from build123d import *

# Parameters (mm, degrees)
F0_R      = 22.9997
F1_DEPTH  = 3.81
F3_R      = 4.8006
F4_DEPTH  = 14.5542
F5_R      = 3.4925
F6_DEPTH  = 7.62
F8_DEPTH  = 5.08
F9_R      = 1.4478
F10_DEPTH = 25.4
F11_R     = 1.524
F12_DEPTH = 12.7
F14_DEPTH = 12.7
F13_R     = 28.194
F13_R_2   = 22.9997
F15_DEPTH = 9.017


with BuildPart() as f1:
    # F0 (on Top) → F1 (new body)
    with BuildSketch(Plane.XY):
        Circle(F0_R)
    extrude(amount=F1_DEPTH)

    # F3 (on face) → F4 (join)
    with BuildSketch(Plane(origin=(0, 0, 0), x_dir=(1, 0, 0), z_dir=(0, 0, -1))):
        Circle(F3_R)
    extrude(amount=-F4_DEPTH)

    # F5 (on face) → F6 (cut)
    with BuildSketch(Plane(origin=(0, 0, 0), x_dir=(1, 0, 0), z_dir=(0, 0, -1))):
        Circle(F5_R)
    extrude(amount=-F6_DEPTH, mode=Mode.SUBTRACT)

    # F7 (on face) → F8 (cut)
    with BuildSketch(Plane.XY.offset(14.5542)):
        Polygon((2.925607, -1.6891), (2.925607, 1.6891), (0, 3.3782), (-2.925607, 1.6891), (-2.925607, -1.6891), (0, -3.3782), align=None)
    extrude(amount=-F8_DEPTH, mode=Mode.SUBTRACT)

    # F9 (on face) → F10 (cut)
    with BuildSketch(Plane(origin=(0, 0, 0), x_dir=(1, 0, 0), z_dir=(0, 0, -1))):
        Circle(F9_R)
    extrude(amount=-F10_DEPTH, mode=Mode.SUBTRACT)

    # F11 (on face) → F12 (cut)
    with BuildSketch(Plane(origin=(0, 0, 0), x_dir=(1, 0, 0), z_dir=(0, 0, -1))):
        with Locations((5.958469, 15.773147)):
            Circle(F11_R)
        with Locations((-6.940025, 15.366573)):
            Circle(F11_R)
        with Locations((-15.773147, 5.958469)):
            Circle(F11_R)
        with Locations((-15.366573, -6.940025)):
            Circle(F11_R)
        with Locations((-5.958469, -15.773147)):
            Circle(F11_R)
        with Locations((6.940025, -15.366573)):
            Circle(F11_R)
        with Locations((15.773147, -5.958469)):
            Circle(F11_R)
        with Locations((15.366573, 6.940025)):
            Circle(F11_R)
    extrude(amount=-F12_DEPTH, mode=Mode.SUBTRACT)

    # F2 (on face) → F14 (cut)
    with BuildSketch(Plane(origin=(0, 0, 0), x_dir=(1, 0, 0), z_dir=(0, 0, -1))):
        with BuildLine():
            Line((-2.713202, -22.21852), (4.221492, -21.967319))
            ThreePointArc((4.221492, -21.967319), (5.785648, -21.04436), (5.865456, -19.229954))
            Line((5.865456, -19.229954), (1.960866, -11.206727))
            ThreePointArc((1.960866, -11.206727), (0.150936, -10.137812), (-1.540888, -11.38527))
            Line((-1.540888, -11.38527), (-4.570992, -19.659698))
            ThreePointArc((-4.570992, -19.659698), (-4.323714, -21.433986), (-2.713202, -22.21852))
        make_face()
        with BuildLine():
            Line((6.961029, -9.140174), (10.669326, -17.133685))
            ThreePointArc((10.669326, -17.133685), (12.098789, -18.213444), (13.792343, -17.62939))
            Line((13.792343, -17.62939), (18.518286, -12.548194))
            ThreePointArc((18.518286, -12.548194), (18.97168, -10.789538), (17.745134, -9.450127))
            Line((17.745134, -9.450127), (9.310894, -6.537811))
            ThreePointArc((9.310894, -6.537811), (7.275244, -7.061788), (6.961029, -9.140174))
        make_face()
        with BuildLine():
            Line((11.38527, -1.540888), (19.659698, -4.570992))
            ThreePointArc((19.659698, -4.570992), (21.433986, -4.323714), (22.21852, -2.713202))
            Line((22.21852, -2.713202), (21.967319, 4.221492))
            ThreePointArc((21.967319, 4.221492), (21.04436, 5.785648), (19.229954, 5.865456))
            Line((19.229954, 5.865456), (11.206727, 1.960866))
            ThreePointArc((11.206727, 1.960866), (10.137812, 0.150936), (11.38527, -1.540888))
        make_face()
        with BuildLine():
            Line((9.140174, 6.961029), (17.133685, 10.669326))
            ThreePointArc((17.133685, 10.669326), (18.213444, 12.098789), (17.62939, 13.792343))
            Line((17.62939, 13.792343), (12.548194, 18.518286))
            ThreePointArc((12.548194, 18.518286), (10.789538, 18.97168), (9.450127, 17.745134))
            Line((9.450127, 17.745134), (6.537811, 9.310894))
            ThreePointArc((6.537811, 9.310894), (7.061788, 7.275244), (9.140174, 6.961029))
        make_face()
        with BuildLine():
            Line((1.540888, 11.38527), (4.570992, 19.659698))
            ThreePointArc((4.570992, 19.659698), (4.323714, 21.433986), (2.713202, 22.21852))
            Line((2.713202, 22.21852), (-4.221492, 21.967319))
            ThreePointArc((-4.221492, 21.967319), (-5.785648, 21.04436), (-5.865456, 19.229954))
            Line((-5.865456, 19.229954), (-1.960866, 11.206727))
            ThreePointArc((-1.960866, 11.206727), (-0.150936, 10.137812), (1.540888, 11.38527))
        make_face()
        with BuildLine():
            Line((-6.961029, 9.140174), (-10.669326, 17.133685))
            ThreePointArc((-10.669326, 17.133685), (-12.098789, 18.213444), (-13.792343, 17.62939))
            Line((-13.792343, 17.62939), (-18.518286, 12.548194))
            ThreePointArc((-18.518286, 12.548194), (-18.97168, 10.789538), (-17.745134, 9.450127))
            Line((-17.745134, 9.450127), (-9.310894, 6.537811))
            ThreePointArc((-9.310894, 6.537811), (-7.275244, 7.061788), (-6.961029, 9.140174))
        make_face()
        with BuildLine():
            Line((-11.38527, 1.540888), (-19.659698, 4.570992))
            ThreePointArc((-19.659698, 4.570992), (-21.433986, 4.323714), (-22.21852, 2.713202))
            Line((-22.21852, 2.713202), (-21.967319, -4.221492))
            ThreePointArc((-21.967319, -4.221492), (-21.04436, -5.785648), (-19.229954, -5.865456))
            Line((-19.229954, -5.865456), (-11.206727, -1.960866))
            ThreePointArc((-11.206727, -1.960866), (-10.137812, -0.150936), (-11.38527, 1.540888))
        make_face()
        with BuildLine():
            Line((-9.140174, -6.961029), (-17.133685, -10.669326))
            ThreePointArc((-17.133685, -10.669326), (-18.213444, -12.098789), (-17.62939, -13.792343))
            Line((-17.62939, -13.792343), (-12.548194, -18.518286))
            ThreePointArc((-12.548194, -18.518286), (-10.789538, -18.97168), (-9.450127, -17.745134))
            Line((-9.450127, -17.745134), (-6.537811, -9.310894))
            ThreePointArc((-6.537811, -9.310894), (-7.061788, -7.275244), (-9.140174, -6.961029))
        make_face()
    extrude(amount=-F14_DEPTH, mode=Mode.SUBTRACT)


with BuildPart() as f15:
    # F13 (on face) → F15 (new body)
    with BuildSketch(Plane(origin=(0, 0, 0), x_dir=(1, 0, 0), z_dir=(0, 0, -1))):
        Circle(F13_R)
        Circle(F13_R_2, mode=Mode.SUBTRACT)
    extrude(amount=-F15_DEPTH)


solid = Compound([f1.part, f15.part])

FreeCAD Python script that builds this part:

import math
import FreeCAD as App
import Part
import Sketcher
from FreeCAD import Vector
Q = App.Units.Quantity

doc = App.newDocument("Part")
body = doc.addObject("PartDesign::Body", "Body")

# Sketch on XY plane
sketch1 = body.newObject("Sketcher::SketchObject", "Sketch")
sketch1.AttachmentSupport = (doc.getObject("XY_Plane"), [""])
sketch1.MapMode = "FlatFace"
sketch1.addGeometry(Part.Circle(Vector(0, 0, 0), Vector(0, 0, 1), 23), False)
sketch1.addConstraint([
    Sketcher.Constraint("Coincident", 0, 3, -1, 1),
    Sketcher.Constraint("Diameter", 0, Q("1.811 in")),
])
pad1 = body.newObject("PartDesign::Pad", "Pad")
pad1.Profile = sketch1
pad1.Length = Q("0.15 in")

# Sketch on XY plane
sketch2 = body.newObject("Sketcher::SketchObject", "Sketch001")
sketch2.AttachmentSupport = (doc.getObject("XY_Plane"), [""])
sketch2.MapMode = "FlatFace"
sketch2.addGeometry(Part.Circle(Vector(0, 0, 0), Vector(0, 0, 1), 4.8), False)
sketch2.addConstraint([
    Sketcher.Constraint("Coincident", 0, 3, -1, 1),
    Sketcher.Constraint("Diameter", 0, Q("0.378 in")),
])
pad2 = body.newObject("PartDesign::Pad", "Pad001")
pad2.Profile = sketch2
pad2.Length = Q("0.573 in")

# Sketch on XY plane
sketch3 = body.newObject("Sketcher::SketchObject", "Sketch002")
sketch3.AttachmentSupport = (doc.getObject("XY_Plane"), [""])
sketch3.MapMode = "FlatFace"
sketch3.addGeometry(Part.Circle(Vector(0, 0, 0), Vector(0, 0, 1), 3.5), False)
sketch3.addConstraint([
    Sketcher.Constraint("Coincident", 0, 3, -1, 1),
    Sketcher.Constraint("Diameter", 0, Q("0.275 in")),
])
pocket1 = body.newObject("PartDesign::Pocket", "Pocket")
pocket1.Profile = sketch3
pocket1.Length = Q("0.3 in")
pocket1.Reversed = True

# Sketch on XY plane
sketch4 = body.newObject("Sketcher::SketchObject", "Sketch003")
sketch4.AttachmentSupport = (doc.getObject("XY_Plane"), [""])
sketch4.MapMode = "FlatFace"
sketch4.AttachmentOffset = App.Placement(Vector(0, 0, 0.573 * 25.4), App.Rotation())
sketch4.addGeometry([
    Part.LineSegment(Vector(2.9, -1.7, 0), Vector(2.9, 1.7, 0)),  # 0
    Part.LineSegment(Vector(2.9, 1.7, 0), Vector(0, 3.4, 0)),  # 1
    Part.LineSegment(Vector(0, 3.4, 0), Vector(-2.9, 1.7, 0)),  # 2
    Part.LineSegment(Vector(-2.9, 1.7, 0), Vector(-2.9, -1.7, 0)),  # 3
    Part.LineSegment(Vector(-2.9, -1.7, 0), Vector(0, -3.4, 0)),  # 4
    Part.LineSegment(Vector(0, -3.4, 0), Vector(2.9, -1.7, 0)),  # 5
], False)
sketch4.addConstraint([
    Sketcher.Constraint("Coincident", 0, 2, 1, 1),
    Sketcher.Constraint("Coincident", 1, 2, 2, 1),
    Sketcher.Constraint("Coincident", 2, 2, 3, 1),
    Sketcher.Constraint("Coincident", 3, 2, 4, 1),
    Sketcher.Constraint("Coincident", 4, 2, 5, 1),
    Sketcher.Constraint("Coincident", 5, 2, 0, 1),
    Sketcher.Constraint("Vertical", 0),
    Sketcher.Constraint("Vertical", 3),
    Sketcher.Constraint("Symmetric", 0, 2, 3, 2, -1, 1),
    Sketcher.Constraint("Symmetric", 1, 2, 4, 2, -1, 1),
    Sketcher.Constraint("PointOnObject", 1, 2, -2),
    Sketcher.Constraint("Parallel", 2, 5),
    Sketcher.Constraint("Horizontal", 0, 2, 2, 2),
    Sketcher.Constraint("Angle", 1, Q("150 deg")),
    Sketcher.Constraint("DistanceY", 0, 1, 0, 2, Q("0.133 in")),
    Sketcher.Constraint("Distance", 1, Q("0.133 in")),
])
pocket2 = body.newObject("PartDesign::Pocket", "Pocket001")
pocket2.Profile = sketch4
pocket2.Length = Q("0.2 in")

# Sketch on XY plane
sketch5 = body.newObject("Sketcher::SketchObject", "Sketch004")
sketch5.AttachmentSupport = (doc.getObject("XY_Plane"), [""])
sketch5.MapMode = "FlatFace"
sketch5.addGeometry(Part.Circle(Vector(0, 0, 0), Vector(0, 0, 1), 1.4), False)
sketch5.addConstraint([
    Sketcher.Constraint("Coincident", 0, 3, -1, 1),
    Sketcher.Constraint("Diameter", 0, Q("0.114 in")),
])
pocket3 = body.newObject("PartDesign::Pocket", "Pocket002")
pocket3.Profile = sketch5
pocket3.Length = Q("1 in")
pocket3.Reversed = True

# Sketch on XY plane
sketch6 = body.newObject("Sketcher::SketchObject", "Sketch005")
sketch6.AttachmentSupport = (doc.getObject("XY_Plane"), [""])
sketch6.MapMode = "FlatFace"
sketch6.addGeometry([
    Part.Circle(Vector(6, -15.8, 0), Vector(0, 0, 1), 1.5),  # 0
    Part.Circle(Vector(-6.9, -15.4, 0), Vector(0, 0, 1), 1.5),  # 1
    Part.Circle(Vector(-15.8, -6, 0), Vector(0, 0, 1), 1.5),  # 2
    Part.Circle(Vector(-15.4, 6.9, 0), Vector(0, 0, 1), 1.5),  # 3
    Part.Circle(Vector(-6, 15.8, 0), Vector(0, 0, 1), 1.5),  # 4
    Part.Circle(Vector(6.9, 15.4, 0), Vector(0, 0, 1), 1.5),  # 5
    Part.Circle(Vector(15.8, 6, 0), Vector(0, 0, 1), 1.5),  # 6
    Part.Circle(Vector(15.4, -6.9, 0), Vector(0, 0, 1), 1.5),  # 7
], False)
sketch6.addConstraint([
    Sketcher.Constraint("Equal", 0, 1),
    Sketcher.Constraint("Equal", 1, 2),
    Sketcher.Constraint("Equal", 2, 3),
    Sketcher.Constraint("Equal", 3, 4),
    Sketcher.Constraint("Equal", 4, 5),
    Sketcher.Constraint("Equal", 5, 6),
    Sketcher.Constraint("Equal", 6, 7),
    Sketcher.Constraint("Symmetric", 0, 3, 4, 3, -1, 1),
    Sketcher.Constraint("Symmetric", 1, 3, 5, 3, -1, 1),
    Sketcher.Constraint("Symmetric", 2, 3, 6, 3, -1, 1),
    Sketcher.Constraint("Symmetric", 3, 3, 7, 3, -1, 1),
    Sketcher.Constraint("Diameter", 0, Q("0.12 in")),
    Sketcher.Constraint("DistanceY", 1, 3, 3, 3, Q("22.306598 mm")),
    Sketcher.Constraint("DistanceX", 3, 3, 5, 3, Q("22.306598 mm")),
    Sketcher.Constraint("DistanceX", -1, 1, 0, 3, Q("5.958469 mm")),
    Sketcher.Constraint("DistanceY", 2, 3, -1, 1, Q("5.958469 mm")),
    Sketcher.Constraint("DistanceY", 0, 3, 2, 3, Q("9.814678 mm")),
    Sketcher.Constraint("DistanceX", 3, 3, 0, 3, Q("21.325042 mm")),
    Sketcher.Constraint("DistanceY", 0, 3, 3, 3, Q("22.713172 mm")),
    Sketcher.Constraint("DistanceX", 2, 3, 4, 3, Q("9.814678 mm")),
])
pocket4 = body.newObject("PartDesign::Pocket", "Pocket003")
pocket4.Profile = sketch6
pocket4.Length = Q("0.5 in")
pocket4.Reversed = True

# Sketch on XY plane
sketch7 = body.newObject("Sketcher::SketchObject", "Sketch006")
sketch7.AttachmentSupport = (doc.getObject("XY_Plane"), [""])
sketch7.MapMode = "FlatFace"
sketch7.addGeometry([
    Part.LineSegment(Vector(-2.7, 22.2, 0), Vector(4.2, 22, 0)),  # 0
    Part.ArcOfCircle(Part.Circle(Vector(4.2, 20.1, 0), Vector(0, 0, 1), 1.9), math.radians(-26), math.radians(88)),  # 1
    Part.LineSegment(Vector(5.9, 19.2, 0), Vector(2, 11.2, 0)),  # 2
    Part.ArcOfCircle(Part.Circle(Vector(0.2, 12, 0), Vector(0, 0, 1), 1.9), math.radians(-160), math.radians(-26)),  # 3
    Part.LineSegment(Vector(-1.5, 11.4, 0), Vector(-4.6, 19.7, 0)),  # 4
    Part.ArcOfCircle(Part.Circle(Vector(-2.8, 20.3, 0), Vector(0, 0, 1), 1.9), math.radians(88), math.radians(200)),  # 5
    Part.LineSegment(Vector(7, 9.1, 0), Vector(10.7, 17.1, 0)),  # 6
    Part.ArcOfCircle(Part.Circle(Vector(12.4, 16.3, 0), Vector(0, 0, 1), 1.9), math.radians(43), math.radians(155)),  # 7
    Part.LineSegment(Vector(13.8, 17.6, 0), Vector(18.5, 12.5, 0)),  # 8
    Part.ArcOfCircle(Part.Circle(Vector(17.1, 11.3, 0), Vector(0, 0, 1), 1.9), math.radians(-71), math.radians(43)),  # 9
    Part.LineSegment(Vector(17.7, 9.5, 0), Vector(9.3, 6.5, 0)),  # 10
    Part.ArcOfCircle(Part.Circle(Vector(8.7, 8.3, 0), Vector(0, 0, 1), 1.9), math.radians(155), math.radians(289)),  # 11
    Part.LineSegment(Vector(11.4, 1.5, 0), Vector(19.7, 4.6, 0)),  # 12
    Part.ArcOfCircle(Part.Circle(Vector(20.3, 2.8, 0), Vector(0, 0, 1), 1.9), math.radians(-2), math.radians(110)),  # 13
    Part.LineSegment(Vector(22.2, 2.7, 0), Vector(22, -4.2, 0)),  # 14
    Part.ArcOfCircle(Part.Circle(Vector(20.1, -4.2, 0), Vector(0, 0, 1), 1.9), math.radians(-116), math.radians(-2)),  # 15
    Part.LineSegment(Vector(19.2, -5.9, 0), Vector(11.2, -2, 0)),  # 16
    Part.ArcOfCircle(Part.Circle(Vector(12, -0.2, 0), Vector(0, 0, 1), 1.9), math.radians(110), math.radians(244)),  # 17
    Part.LineSegment(Vector(9.1, -7, 0), Vector(17.1, -10.7, 0)),  # 18
    Part.ArcOfCircle(Part.Circle(Vector(16.3, -12.4, 0), Vector(0, 0, 1), 1.9), math.radians(-47), math.radians(65)),  # 19
    Part.LineSegment(Vector(17.6, -13.8, 0), Vector(12.5, -18.5, 0)),  # 20
    Part.ArcOfCircle(Part.Circle(Vector(11.3, -17.1, 0), Vector(0, 0, 1), 1.9), math.radians(-161), math.radians(-47)),  # 21
    Part.LineSegment(Vector(9.5, -17.7, 0), Vector(6.5, -9.3, 0)),  # 22
    Part.ArcOfCircle(Part.Circle(Vector(8.3, -8.7, 0), Vector(0, 0, 1), 1.9), math.radians(65), math.radians(199)),  # 23
    Part.LineSegment(Vector(1.5, -11.4, 0), Vector(4.6, -19.7, 0)),  # 24
    Part.ArcOfCircle(Part.Circle(Vector(2.8, -20.3, 0), Vector(0, 0, 1), 1.9), math.radians(-92), math.radians(20)),  # 25
    Part.LineSegment(Vector(2.7, -22.2, 0), Vector(-4.2, -22, 0)),  # 26
    Part.ArcOfCircle(Part.Circle(Vector(-4.2, -20.1, 0), Vector(0, 0, 1), 1.9), math.radians(154), math.radians(268)),  # 27
    Part.LineSegment(Vector(-5.9, -19.2, 0), Vector(-2, -11.2, 0)),  # 28
    Part.ArcOfCircle(Part.Circle(Vector(-0.2, -12, 0), Vector(0, 0, 1), 1.9), math.radians(20), math.radians(154)),  # 29
    Part.LineSegment(Vector(-7, -9.1, 0), Vector(-10.7, -17.1, 0)),  # 30
    Part.ArcOfCircle(Part.Circle(Vector(-12.4, -16.3, 0), Vector(0, 0, 1), 1.9), math.radians(-137), math.radians(-25)),  # 31
    Part.LineSegment(Vector(-13.8, -17.6, 0), Vector(-18.5, -12.5, 0)),  # 32
    Part.ArcOfCircle(Part.Circle(Vector(-17.1, -11.3, 0), Vector(0, 0, 1), 1.9), math.radians(109), math.radians(223)),  # 33
    Part.LineSegment(Vector(-17.7, -9.5, 0), Vector(-9.3, -6.5, 0)),  # 34
    Part.ArcOfCircle(Part.Circle(Vector(-8.7, -8.3, 0), Vector(0, 0, 1), 1.9), math.radians(-25), math.radians(109)),  # 35
    Part.LineSegment(Vector(-11.4, -1.5, 0), Vector(-19.7, -4.6, 0)),  # 36
    Part.ArcOfCircle(Part.Circle(Vector(-20.3, -2.8, 0), Vector(0, 0, 1), 1.9), math.radians(178), math.radians(290)),  # 37
    Part.LineSegment(Vector(-22.2, -2.7, 0), Vector(-22, 4.2, 0)),  # 38
    Part.ArcOfCircle(Part.Circle(Vector(-20.1, 4.2, 0), Vector(0, 0, 1), 1.9), math.radians(64), math.radians(178)),  # 39
    Part.LineSegment(Vector(-19.2, 5.9, 0), Vector(-11.2, 2, 0)),  # 40
    Part.ArcOfCircle(Part.Circle(Vector(-12, 0.2, 0), Vector(0, 0, 1), 1.9), math.radians(-70), math.radians(64)),  # 41
    Part.LineSegment(Vector(-9.1, 7, 0), Vector(-17.1, 10.7, 0)),  # 42
    Part.ArcOfCircle(Part.Circle(Vector(-16.3, 12.4, 0), Vector(0, 0, 1), 1.9), math.radians(133), math.radians(245)),  # 43
    Part.LineSegment(Vector(-17.6, 13.8, 0), Vector(-12.5, 18.5, 0)),  # 44
    Part.ArcOfCircle(Part.Circle(Vector(-11.3, 17.1, 0), Vector(0, 0, 1), 1.9), math.radians(19), math.radians(133)),  # 45
    Part.LineSegment(Vector(-9.5, 17.7, 0), Vector(-6.5, 9.3, 0)),  # 46
    Part.ArcOfCircle(Part.Circle(Vector(-8.3, 8.7, 0), Vector(0, 0, 1), 1.9), math.radians(-115), math.radians(19)),  # 47
], False)
sketch7.addConstraint([
    Sketcher.Constraint("Tangent", 0, 2, 1, 2),
    Sketcher.Constraint("Tangent", 1, 1, 2, 1),
    Sketcher.Constraint("Tangent", 2, 2, 3, 2),
    Sketcher.Constraint("Tangent", 3, 1, 4, 1),
    Sketcher.Constraint("Tangent", 4, 2, 5, 2),
    Sketcher.Constraint("Tangent", 5, 1, 0, 1),
    Sketcher.Constraint("Tangent", 6, 2, 7, 2),
    Sketcher.Constraint("Tangent", 7, 1, 8, 1),
    Sketcher.Constraint("Tangent", 8, 2, 9, 2),
    Sketcher.Constraint("Tangent", 9, 1, 10, 1),
    Sketcher.Constraint("Tangent", 10, 2, 11, 2),
    Sketcher.Constraint("Tangent", 11, 1, 6, 1),
    Sketcher.Constraint("Tangent", 12, 2, 13, 2),
    Sketcher.Constraint("Tangent", 13, 1, 14, 1),
    Sketcher.Constraint("Tangent", 14, 2, 15, 2),
    Sketcher.Constraint("Tangent", 15, 1, 16, 1),
    Sketcher.Constraint("Tangent", 16, 2, 17, 2),
    Sketcher.Constraint("Tangent", 17, 1, 12, 1),
    Sketcher.Constraint("Tangent", 18, 2, 19, 2),
    Sketcher.Constraint("Tangent", 19, 1, 20, 1),
    Sketcher.Constraint("Tangent", 20, 2, 21, 2),
    Sketcher.Constraint("Tangent", 21, 1, 22, 1),
    Sketcher.Constraint("Tangent", 22, 2, 23, 2),
    Sketcher.Constraint("Tangent", 23, 1, 18, 1),
    Sketcher.Constraint("Tangent", 24, 2, 25, 2),
    Sketcher.Constraint("Tangent", 25, 1, 26, 1),
    Sketcher.Constraint("Tangent", 26, 2, 27, 2),
    Sketcher.Constraint("Tangent", 27, 1, 28, 1),
    Sketcher.Constraint("Tangent", 28, 2, 29, 2),
    Sketcher.Constraint("Tangent", 29, 1, 24, 1),
    Sketcher.Constraint("Tangent", 30, 2, 31, 2),
    Sketcher.Constraint("Tangent", 31, 1, 32, 1),
    Sketcher.Constraint("Tangent", 32, 2, 33, 2),
    Sketcher.Constraint("Tangent", 33, 1, 34, 1),
    Sketcher.Constraint("Tangent", 34, 2, 35, 2),
    Sketcher.Constraint("Tangent", 35, 1, 30, 1),
    Sketcher.Constraint("Tangent", 36, 2, 37, 2),
    Sketcher.Constraint("Tangent", 37, 1, 38, 1),
    Sketcher.Constraint("Tangent", 38, 2, 39, 2),
    Sketcher.Constraint("Tangent", 39, 1, 40, 1),
    Sketcher.Constraint("Tangent", 40, 2, 41, 2),
    Sketcher.Constraint("Tangent", 41, 1, 36, 1),
    Sketcher.Constraint("Tangent", 42, 2, 43, 2),
    Sketcher.Constraint("Tangent", 43, 1, 44, 1),
    Sketcher.Constraint("Tangent", 44, 2, 45, 2),
    Sketcher.Constraint("Tangent", 45, 1, 46, 1),
    Sketcher.Constraint("Tangent", 46, 2, 47, 2),
    Sketcher.Constraint("Tangent", 47, 1, 42, 1),
    Sketcher.Constraint("Equal", 1, 3),
    Sketcher.Constraint("Equal", 3, 5),
    Sketcher.Constraint("Equal", 5, 7),
    Sketcher.Constraint("Equal", 7, 9),
    Sketcher.Constraint("Equal", 9, 11),
    Sketcher.Constraint("Equal", 11, 13),
    Sketcher.Constraint("Equal", 13, 15),
    Sketcher.Constraint("Equal", 15, 17),
    Sketcher.Constraint("Equal", 17, 19),
    Sketcher.Constraint("Equal", 19, 21),
    Sketcher.Constraint("Equal", 21, 23),
    Sketcher.Constraint("Equal", 23, 25),
    Sketcher.Constraint("Equal", 25, 27),
    Sketcher.Constraint("Equal", 27, 29),
    Sketcher.Constraint("Equal", 29, 31),
    Sketcher.Constraint("Equal", 31, 33),
    Sketcher.Constraint("Equal", 33, 35),
    Sketcher.Constraint("Equal", 35, 37),
    Sketcher.Constraint("Equal", 37, 39),
    Sketcher.Constraint("Equal", 39, 41),
    Sketcher.Constraint("Equal", 41, 43),
    Sketcher.Constraint("Equal", 43, 45),
    Sketcher.Constraint("Equal", 45, 47),
    Sketcher.Constraint("Symmetric", 5, 3, 25, 3, -1, 1),
    Sketcher.Constraint("Symmetric", 1, 3, 27, 3, -1, 1),
    Sketcher.Constraint("Symmetric", 3, 3, 29, 3, -1, 1),
    Sketcher.Constraint("Symmetric", 7, 3, 31, 3, -1, 1),
    Sketcher.Constraint("Symmetric", 9, 3, 33, 3, -1, 1),
    Sketcher.Constraint("Symmetric", 11, 3, 35, 3, -1, 1),
    Sketcher.Constraint("Symmetric", 13, 3, 37, 3, -1, 1),
    Sketcher.Constraint("Symmetric", 15, 3, 39, 3, -1, 1),
    Sketcher.Constraint("Symmetric", 17, 3, 41, 3, -1, 1),
    Sketcher.Constraint("Symmetric", 19, 3, 43, 3, -1, 1),
    Sketcher.Constraint("Symmetric", 21, 3, 45, 3, -1, 1),
    Sketcher.Constraint("Symmetric", 23, 3, 47, 3, -1, 1),
    Sketcher.Constraint("Perpendicular", 4, 12),
    Sketcher.Constraint("Perpendicular", 0, 14),
    Sketcher.Constraint("Perpendicular", 2, 16),
    Sketcher.Constraint("Perpendicular", 6, 18),
    Sketcher.Constraint("Perpendicular", 8, 20),
    Sketcher.Constraint("Perpendicular", 10, 22),
    Sketcher.Constraint("Equal", 4, 6),
    Sketcher.Constraint("Equal", 0, 8),
    Sketcher.Constraint("Equal", 2, 10),
    Sketcher.Constraint("Equal", 6, 12),
    Sketcher.Constraint("Equal", 12, 18),
    Sketcher.Constraint("Radius", 1, Q("0.075 in")),
    Sketcher.Constraint("DistanceY", -1, 1, 9, 3, Q("11.250802 mm")),
    Sketcher.Constraint("DistanceX", -1, 1, 21, 3, Q("11.250802 mm")),
    Sketcher.Constraint("Distance", 2, Q("8.922892 mm")),
    Sketcher.Constraint("DistanceX", -1, 1, 1, 3, Q("4.152531 mm")),
    Sketcher.Constraint("DistanceX", -1, 1, 3, 3, Q("0.247941 mm")),
    Sketcher.Constraint("DistanceY", -1, 1, 3, 3, Q("12.040341 mm")),
    Sketcher.Constraint("DistanceY", -1, 1, 5, 3, Q("20.314769 mm")),
    Sketcher.Constraint("DistanceX", -1, 1, 13, 3, Q("20.314769 mm")),
    Sketcher.Constraint("DistanceY", 15, 3, -1, 1, Q("4.152531 mm")),
    Sketcher.Constraint("DistanceX", -1, 1, 0, 2, Q("4.221492 mm")),
    Sketcher.Constraint("DistanceY", -1, 1, 7, 1, Q("17.62939 mm")),
    Sketcher.Constraint("DistanceX", -1, 1, 11, 1, Q("6.961029 mm")),
    Sketcher.Constraint("DistanceY", 23, 1, -1, 1, Q("6.961029 mm")),
])
pocket5 = body.newObject("PartDesign::Pocket", "Pocket004")
pocket5.Profile = sketch7
pocket5.Length = Q("0.5 in")
pocket5.Reversed = True
body2 = doc.addObject("PartDesign::Body", "Body001")

# Sketch on XY plane
sketch8 = body2.newObject("Sketcher::SketchObject", "Sketch007")
sketch8.AttachmentSupport = (doc.getObject("XY_Plane001"), [""])
sketch8.MapMode = "FlatFace"
sketch8.addGeometry([
    Part.Circle(Vector(0, 0, 0), Vector(0, 0, 1), 28),
    Part.Circle(Vector(0, 0, 0), Vector(0, 0, 1), 23),
], False)
sketch8.addConstraint([
    Sketcher.Constraint("Coincident", 0, 3, -1, 1),
    Sketcher.Constraint("Coincident", 1, 3, -1, 1),
    Sketcher.Constraint("Diameter", 0, Q("2.22 in")),
    Sketcher.Constraint("Diameter", 1, Q("1.811 in")),
])
pad3 = body2.newObject("PartDesign::Pad", "Pad002")
pad3.Profile = sketch8
pad3.Length = Q("0.355 in")

doc.recompute()
